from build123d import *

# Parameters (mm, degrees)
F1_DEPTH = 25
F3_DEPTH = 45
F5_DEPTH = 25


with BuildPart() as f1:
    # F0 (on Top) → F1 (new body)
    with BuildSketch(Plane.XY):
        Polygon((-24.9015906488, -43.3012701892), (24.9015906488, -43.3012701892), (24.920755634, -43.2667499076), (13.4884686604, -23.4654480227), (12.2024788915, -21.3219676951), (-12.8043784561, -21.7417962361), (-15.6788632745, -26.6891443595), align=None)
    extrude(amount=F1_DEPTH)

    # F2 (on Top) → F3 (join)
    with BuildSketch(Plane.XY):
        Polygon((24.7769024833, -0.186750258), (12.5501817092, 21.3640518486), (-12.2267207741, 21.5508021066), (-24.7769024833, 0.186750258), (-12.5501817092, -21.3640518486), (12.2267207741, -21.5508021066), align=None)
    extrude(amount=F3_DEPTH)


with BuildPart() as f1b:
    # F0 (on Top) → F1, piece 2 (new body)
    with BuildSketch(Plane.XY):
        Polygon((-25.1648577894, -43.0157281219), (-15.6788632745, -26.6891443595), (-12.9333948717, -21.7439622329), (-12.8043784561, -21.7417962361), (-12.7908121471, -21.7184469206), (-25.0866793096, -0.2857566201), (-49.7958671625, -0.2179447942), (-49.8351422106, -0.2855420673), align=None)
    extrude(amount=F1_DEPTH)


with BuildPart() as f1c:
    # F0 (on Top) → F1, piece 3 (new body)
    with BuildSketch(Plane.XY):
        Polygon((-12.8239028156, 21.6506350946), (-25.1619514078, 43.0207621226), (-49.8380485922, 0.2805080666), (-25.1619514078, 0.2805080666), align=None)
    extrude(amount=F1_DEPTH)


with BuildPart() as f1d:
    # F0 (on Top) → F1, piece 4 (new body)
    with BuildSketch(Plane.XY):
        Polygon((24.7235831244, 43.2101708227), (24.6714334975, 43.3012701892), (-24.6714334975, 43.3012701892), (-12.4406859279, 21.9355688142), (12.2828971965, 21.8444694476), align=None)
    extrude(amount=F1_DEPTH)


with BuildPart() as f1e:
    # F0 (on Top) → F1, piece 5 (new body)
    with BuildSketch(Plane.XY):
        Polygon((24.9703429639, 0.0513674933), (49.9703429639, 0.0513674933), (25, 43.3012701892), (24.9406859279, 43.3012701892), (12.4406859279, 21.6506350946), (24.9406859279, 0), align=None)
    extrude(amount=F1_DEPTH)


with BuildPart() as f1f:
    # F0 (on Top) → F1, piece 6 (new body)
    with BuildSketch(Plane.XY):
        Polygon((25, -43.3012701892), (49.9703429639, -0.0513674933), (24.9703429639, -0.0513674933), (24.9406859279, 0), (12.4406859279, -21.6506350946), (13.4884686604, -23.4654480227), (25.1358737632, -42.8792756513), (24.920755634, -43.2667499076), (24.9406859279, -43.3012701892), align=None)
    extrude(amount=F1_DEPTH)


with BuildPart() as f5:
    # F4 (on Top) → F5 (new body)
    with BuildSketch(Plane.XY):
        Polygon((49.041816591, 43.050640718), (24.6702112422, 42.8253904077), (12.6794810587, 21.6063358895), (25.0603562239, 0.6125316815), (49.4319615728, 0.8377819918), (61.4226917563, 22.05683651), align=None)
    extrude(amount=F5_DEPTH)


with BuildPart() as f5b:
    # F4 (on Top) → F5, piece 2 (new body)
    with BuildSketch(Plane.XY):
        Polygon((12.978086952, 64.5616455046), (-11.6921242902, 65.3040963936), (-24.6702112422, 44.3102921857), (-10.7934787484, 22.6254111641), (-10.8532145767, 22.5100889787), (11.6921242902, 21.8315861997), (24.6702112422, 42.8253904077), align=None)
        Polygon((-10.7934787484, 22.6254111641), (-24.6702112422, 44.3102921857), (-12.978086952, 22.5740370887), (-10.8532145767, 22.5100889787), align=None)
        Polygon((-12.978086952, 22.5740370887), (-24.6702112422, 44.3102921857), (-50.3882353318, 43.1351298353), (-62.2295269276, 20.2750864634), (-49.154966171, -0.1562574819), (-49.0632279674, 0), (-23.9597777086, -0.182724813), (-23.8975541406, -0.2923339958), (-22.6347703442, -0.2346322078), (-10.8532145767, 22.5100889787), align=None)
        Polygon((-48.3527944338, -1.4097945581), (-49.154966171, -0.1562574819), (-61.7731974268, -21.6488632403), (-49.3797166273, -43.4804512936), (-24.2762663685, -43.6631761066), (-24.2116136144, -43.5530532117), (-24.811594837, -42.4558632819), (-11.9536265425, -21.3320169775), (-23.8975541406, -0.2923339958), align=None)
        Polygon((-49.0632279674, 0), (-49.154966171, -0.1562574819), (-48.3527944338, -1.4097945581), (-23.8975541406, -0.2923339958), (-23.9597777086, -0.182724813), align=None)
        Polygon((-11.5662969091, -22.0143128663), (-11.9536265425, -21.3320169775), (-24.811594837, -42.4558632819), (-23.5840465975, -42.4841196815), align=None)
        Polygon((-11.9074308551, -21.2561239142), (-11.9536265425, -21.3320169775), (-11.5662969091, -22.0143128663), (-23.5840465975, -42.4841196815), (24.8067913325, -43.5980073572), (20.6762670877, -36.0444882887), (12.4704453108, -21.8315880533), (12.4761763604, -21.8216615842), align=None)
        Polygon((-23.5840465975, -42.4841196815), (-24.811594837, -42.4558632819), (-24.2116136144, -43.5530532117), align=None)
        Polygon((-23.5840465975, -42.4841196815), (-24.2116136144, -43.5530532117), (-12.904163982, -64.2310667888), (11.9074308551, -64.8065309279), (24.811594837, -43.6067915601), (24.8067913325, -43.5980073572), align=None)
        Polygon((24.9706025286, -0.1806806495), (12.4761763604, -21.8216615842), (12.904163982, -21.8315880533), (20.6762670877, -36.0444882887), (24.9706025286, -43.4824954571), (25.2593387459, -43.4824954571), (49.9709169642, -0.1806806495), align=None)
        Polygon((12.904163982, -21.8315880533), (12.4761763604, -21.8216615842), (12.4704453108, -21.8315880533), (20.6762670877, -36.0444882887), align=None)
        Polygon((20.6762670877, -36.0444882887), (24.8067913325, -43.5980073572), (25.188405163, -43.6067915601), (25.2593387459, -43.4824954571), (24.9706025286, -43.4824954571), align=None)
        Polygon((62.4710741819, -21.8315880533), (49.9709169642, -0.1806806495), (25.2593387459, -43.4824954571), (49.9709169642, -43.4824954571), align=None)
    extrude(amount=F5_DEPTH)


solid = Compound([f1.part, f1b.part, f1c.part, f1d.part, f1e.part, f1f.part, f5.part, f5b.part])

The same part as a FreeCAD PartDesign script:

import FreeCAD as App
import Part
import Sketcher
from FreeCAD import Vector
Q = App.Units.Quantity


def add_polygon(sketch, points):
    """Adds a closed chain of lines whose ends are joined by coincident constraints."""
    first, n = sketch.GeometryCount, len(points)
    for a, b in zip(points, points[1:] + points[:1]):
        sketch.addGeometry(Part.LineSegment(App.Vector(*a, 0), App.Vector(*b, 0)), False)
    for i in range(n):
        sketch.addConstraint(Sketcher.Constraint("Coincident", first + i, 2, first + (i + 1) % n, 1))

doc = App.newDocument("Part")
body = doc.addObject("PartDesign::Body", "Body")

# Sketch on XY plane
sketch1 = body.newObject("Sketcher::SketchObject", "Sketch")
sketch1.AttachmentSupport = (doc.getObject("XY_Plane"), [""])
sketch1.MapMode = "FlatFace"
add_polygon(sketch1, [(-24.902, -43.301), (24.902, -43.301), (24.921, -43.267), (13.488, -23.465), (12.202, -21.322), (-12.804, -21.742), (-15.679, -26.689)])  # lines 0-6
sketch1.addConstraint([
    Sketcher.Constraint("Horizontal", 0),
    Sketcher.Constraint("Parallel", 1, 6),
    Sketcher.Constraint("Angle", 2, Q("120 deg")),
    Sketcher.Constraint("DistanceX", 0, 1, 0, 2, Q("49.803181 mm")),
    Sketcher.Constraint("DistanceY", 1, 2, 2, 2, Q("19.801302 mm")),
    Sketcher.Constraint("Distance", 4, Q("25.010381 mm")),
    Sketcher.Constraint("DistanceX", -1, 1, 0, 2, Q("24.901591 mm")),
    Sketcher.Constraint("DistanceY", 0, 2, -1, 1, Q("43.30127 mm")),
    Sketcher.Constraint("DistanceY", 1, 2, -1, 1, Q("43.26675 mm")),
    Sketcher.Constraint("DistanceX", -1, 1, 3, 2, Q("12.202479 mm")),
    Sketcher.Constraint("DistanceX", 4, 2, -1, 1, Q("12.804378 mm")),
    Sketcher.Constraint("DistanceY", 2, 2, 3, 2, Q("2.14348 mm")),
    Sketcher.Constraint("DistanceY", 5, 2, 4, 2, Q("4.947348 mm")),
    Sketcher.Constraint("DistanceX", 5, 2, 2, 2, Q("29.167332 mm")),
])
pad1 = body.newObject("PartDesign::Pad", "Pad")
pad1.Profile = sketch1
pad1.Length = 25

# Sketch on XY plane
sketch2 = body.newObject("Sketcher::SketchObject", "Sketch001")
sketch2.AttachmentSupport = (doc.getObject("XY_Plane"), [""])
sketch2.MapMode = "FlatFace"
add_polygon(sketch2, [(25, 0), (13, 21), (-12, 22), (-25, 0), (-13, -21), (12, -22)])  # lines 0-5
sketch2.addConstraint([
    Sketcher.Constraint("Symmetric", 0, 2, 3, 2, -1, 1),
    Sketcher.Constraint("Symmetric", 1, 2, 4, 2, -1, 1),
    Sketcher.Constraint("Symmetric", 2, 2, 5, 2, -1, 1),
    Sketcher.Constraint("Equal", 0, 1),
    Sketcher.Constraint("Equal", 1, 2),
    Sketcher.Constraint("DistanceY", 2, 2, 0, 2, Q("21.177302 mm")),
    Sketcher.Constraint("DistanceY", 5, 2, 2, 2, Q("0.373501 mm")),
    Sketcher.Constraint("DistanceX", -1, 1, 0, 2, Q("12.550182 mm")),
    Sketcher.Constraint("DistanceX", 1, 2, -1, 1, Q("12.226721 mm")),
])
pad2 = body.newObject("PartDesign::Pad", "Pad001")
pad2.Profile = sketch2
pad2.Length = 45
body2 = doc.addObject("PartDesign::Body", "Body001")

# Sketch on XY plane
sketch3 = body2.newObject("Sketcher::SketchObject", "Sketch002")
sketch3.AttachmentSupport = (doc.getObject("XY_Plane001"), [""])
sketch3.MapMode = "FlatFace"
add_polygon(sketch3, [(-25.165, -43.016), (-15.679, -26.689), (-12.933, -21.744), (-12.804, -21.742), (-12.791, -21.718), (-25.087, -0.286), (-49.796, -0.218), (-49.835, -0.286)])  # lines 0-7
sketch3.addConstraint([
    Sketcher.Constraint("Parallel", 0, 3),
    Sketcher.Constraint("Parallel", 3, 6),
    Sketcher.Constraint("Equal", 4, 5),
    Sketcher.Constraint("Angle", 7, Q("-60 deg")),
    Sketcher.Constraint("DistanceX", 4, 2, 2, 2, Q("12.282301 mm")),
    Sketcher.Constraint("DistanceY", 0, 2, 5, 2, Q("26.4712 mm")),
    Sketcher.Constraint("Distance", 4, Q("24.709281 mm")),
    Sketcher.Constraint("Distance", 6, Q("0.078179 mm")),
    Sketcher.Constraint("Distance", 7, Q("49.340569 mm")),
    Sketcher.Constraint("DistanceX", 2, 2, -1, 1, Q("12.804378 mm")),
    Sketcher.Constraint("DistanceY", 7, 2, -1, 1, Q("43.015728 mm")),
    Sketcher.Constraint("DistanceX", 0, 2, 1, 2, Q("2.745468 mm")),
    Sketcher.Constraint("DistanceY", 0, 2, 2, 2, Q("4.947348 mm")),
    Sketcher.Constraint("DistanceY", 2, 2, 3, 2, Q("0.023349 mm")),
    Sketcher.Constraint("DistanceX", 0, 2, 3, 2, Q("2.888051 mm")),
    Sketcher.Constraint("DistanceY", 1, 2, 6, 2, Q("21.45842 mm")),
])
pad3 = body2.newObject("PartDesign::Pad", "Pad002")
pad3.Profile = sketch3
pad3.Length = 25
body3 = doc.addObject("PartDesign::Body", "Body002")

# Sketch on XY plane
sketch4 = body3.newObject("Sketcher::SketchObject", "Sketch003")
sketch4.AttachmentSupport = (doc.getObject("XY_Plane002"), [""])
sketch4.MapMode = "FlatFace"
add_polygon(sketch4, [(-13, 22), (-25, 43), (-50, 0), (-25, 0)])  # lines 0-3
sketch4.addConstraint([
    Sketcher.Constraint("Horizontal", 2),
    Sketcher.Constraint("Parallel", 1, 3),
    Sketcher.Constraint("Vertical", 0, 2, 2, 2),
    Sketcher.Constraint("Equal", 0, 3),
    Sketcher.Constraint("Angle", 0, Q("120 deg")),
    Sketcher.Constraint("DistanceX", 2, 1, 2, 2, Q("24.676097 mm")),
    Sketcher.Constraint("DistanceX", 0, 2, -1, 1, Q("25.161951 mm")),
    Sketcher.Constraint("DistanceY", -1, 1, 1, 2, Q("0.280508 mm")),
])
pad4 = body3.newObject("PartDesign::Pad", "Pad003")
pad4.Profile = sketch4
pad4.Length = 25
body4 = doc.addObject("PartDesign::Body", "Body003")

# Sketch on XY plane
sketch5 = body4.newObject("Sketcher::SketchObject", "Sketch004")
sketch5.AttachmentSupport = (doc.getObject("XY_Plane003"), [""])
sketch5.MapMode = "FlatFace"
add_polygon(sketch5, [(24.72, 43.21), (24.67, 43.3), (-24.67, 43.3), (-12.44, 21.94), (12.28, 21.84)])  # lines 0-4
sketch5.addConstraint([
    Sketcher.Constraint("Horizontal", 1),
    Sketcher.Constraint("Parallel", 0, 2),
    Sketcher.Constraint("Equal", 3, 4),
    Sketcher.Constraint("DistanceY", 2, 2, 1, 2, Q("21.365701 mm")),
    Sketcher.Constraint("DistanceY", 3, 2, 2, 2, Q("0.091099 mm")),
    Sketcher.Constraint("DistanceY", 4, 2, 0, 2, Q("0.091099 mm")),
    Sketcher.Constraint("Distance", 2, Q("24.618781 mm")),
    Sketcher.Constraint("Distance", 3, Q("24.723751 mm")),
    Sketcher.Constraint("DistanceY", -1, 1, 0, 2, Q("43.30127 mm")),
    Sketcher.Constraint("DistanceX", -1, 1, 0, 2, Q("24.671433 mm")),
])
pad5 = body4.newObject("PartDesign::Pad", "Pad004")
pad5.Profile = sketch5
pad5.Length = 25
body5 = doc.addObject("PartDesign::Body", "Body004")

# Sketch on XY plane
sketch6 = body5.newObject("Sketcher::SketchObject", "Sketch005")
sketch6.AttachmentSupport = (doc.getObject("XY_Plane004"), [""])
sketch6.MapMode = "FlatFace"
add_polygon(sketch6, [(24.97, 0.05), (49.97, 0.05), (25, 43.3), (24.94, 43.3), (12.44, 21.65), (24.94, 0)])  # lines 0-5
sketch6.addConstraint([
    Sketcher.Constraint("Horizontal", 0),
    Sketcher.Constraint("Horizontal", 2),
    Sketcher.Constraint("PointOnObject", 4, 2, -1),
    Sketcher.Constraint("Parallel", 1, 4),
    Sketcher.Constraint("Parallel", 3, 5),
    Sketcher.Constraint("Vertical", 2, 2, 4, 2),
    Sketcher.Constraint("Equal", 3, 4),
    Sketcher.Constraint("DistanceX", 0, 1, 0, 2, Q("25 mm")),
    Sketcher.Constraint("Angle", 1, Q("120 deg")),
    Sketcher.Constraint("Distance", 3, Q("25 mm")),
    Sketcher.Constraint("DistanceX", -1, 1, 1, 2, Q("25 mm")),
    Sketcher.Constraint("DistanceX", 2, 2, 2, 1, Q("0.059314 mm")),
])
pad6 = body5.newObject("PartDesign::Pad", "Pad005")
pad6.Profile = sketch6
pad6.Length = 25
body6 = doc.addObject("PartDesign::Body", "Body005")

# Sketch on XY plane
sketch7 = body6.newObject("Sketcher::SketchObject", "Sketch006")
sketch7.AttachmentSupport = (doc.getObject("XY_Plane005"), [""])
sketch7.MapMode = "FlatFace"
add_polygon(sketch7, [(25, -43.301), (49.97, -0.051), (24.97, -0.051), (24.941, 0), (12.441, -21.651), (13.488, -23.465), (25.136, -42.879), (24.921, -43.267), (24.941, -43.301)])  # lines 0-8
sketch7.addConstraint([
    Sketcher.Constraint("Horizontal", 1),
    Sketcher.Constraint("Horizontal", 8),
    Sketcher.Constraint("PointOnObject", 2, 2, -1),
    Sketcher.Constraint("Parallel", 0, 3),
    Sketcher.Constraint("Parallel", 2, 4),
    Sketcher.Constraint("Parallel", 4, 7),
    Sketcher.Constraint("Vertical", 2, 2, 7, 2),
    Sketcher.Constraint("DistanceX", 1, 2, 1, 1, Q("25 mm")),
    Sketcher.Constraint("Angle", 0, Q("60 deg")),
    Sketcher.Constraint("Angle", 2, Q("120 deg")),
    Sketcher.Constraint("Distance", 3, Q("25 mm")),
    Sketcher.Constraint("DistanceX", -1, 1, 8, 2, Q("25 mm")),
    Sketcher.Constraint("DistanceY", 6, 2, 4, 2, Q("19.801302 mm")),
    Sketcher.Constraint("Distance", 5, Q("22.63976 mm")),
    Sketcher.Constraint("Distance", 7, Q("0.039861 mm")),
    Sketcher.Constraint("DistanceX", 8, 1, 8, 2, Q("0.059314 mm")),
    Sketcher.Constraint("DistanceX", -1, 1, 4, 2, Q("13.488469 mm")),
    Sketcher.Constraint("DistanceY", 5, 2, 3, 2, Q("21.228641 mm")),
])
pad7 = body6.newObject("PartDesign::Pad", "Pad006")
pad7.Profile = sketch7
pad7.Length = 25
body7 = doc.addObject("PartDesign::Body", "Body006")

# Sketch on XY plane
sketch8 = body7.newObject("Sketcher::SketchObject", "Sketch007")
sketch8.AttachmentSupport = (doc.getObject("XY_Plane006"), [""])
sketch8.MapMode = "FlatFace"
add_polygon(sketch8, [(49, 43), (25, 43), (13, 22), (25, 1), (49, 1), (61, 22)])  # lines 0-5
sketch8.addConstraint([
    Sketcher.Constraint("Parallel", 0, 3),
    Sketcher.Constraint("Parallel", 1, 4),
    Sketcher.Constraint("Parallel", 2, 5),
    Sketcher.Constraint("Equal", 0, 1),
    Sketcher.Constraint("Equal", 1, 2),
    Sketcher.Constraint("Equal", 2, 3),
    Sketcher.Constraint("DistanceY", 1, 2, 4, 2, Q("0.450501 mm")),
    Sketcher.Constraint("DistanceX", -1, 1, 0, 2, Q("24.670211 mm")),
    Sketcher.Constraint("DistanceY", -1, 1, 0, 2, Q("42.82539 mm")),
    Sketcher.Constraint("DistanceX", -1, 1, 1, 2, Q("12.679481 mm")),
    Sketcher.Constraint("DistanceY", -1, 1, 2, 2, Q("0.612532 mm")),
    Sketcher.Constraint("DistanceX", -1, 1, 3, 2, Q("49.431962 mm")),
])
pad8 = body7.newObject("PartDesign::Pad", "Pad007")
pad8.Profile = sketch8
pad8.Length = 25
body8 = doc.addObject("PartDesign::Body", "Body007")

# Sketch on XY plane
sketch9 = body8.newObject("Sketcher::SketchObject", "Sketch008")
sketch9.AttachmentSupport = (doc.getObject("XY_Plane007"), [""])
sketch9.MapMode = "FlatFace"
add_polygon(sketch9, [(12.978, 64.562), (-11.692, 65.304), (-24.67, 44.31), (-50.388, 43.135), (-62.23, 20.275), (-49.155, -0.156), (-61.773, -21.649), (-49.38, -43.48), (-24.276, -43.663), (-24.212, -43.553), (-12.904, -64.231), (11.907, -64.807), (24.812, -43.607), (24.807, -43.598), (25.188, -43.607), (25.259, -43.482), (49.971, -43.482), (62.471, -21.832), (49.971, -0.181), (24.971, -0.181), (12.476, -21.822), (-11.907, -21.256), (-11.954, -21.332), (-23.898, -0.292), (-22.635, -0.235), (-10.853, 22.51), (11.692, 21.832), (24.67, 42.825)])  # lines 0-27
sketch9.addConstraint([
    Sketcher.Constraint("Horizontal", 15),
    Sketcher.Constraint("Horizontal", 18),
    Sketcher.Constraint("Parallel", 5, 8),
    Sketcher.Constraint("Parallel", 9, 12),
    Sketcher.Constraint("Parallel", 16, 19),
    Sketcher.Constraint("Parallel", 10, 20),
    Sketcher.Constraint("Parallel", 11, 21),
    Sketcher.Constraint("Parallel", 6, 22),
    Sketcher.Constraint("Parallel", 2, 23),
    Sketcher.Constraint("Parallel", 3, 24),
    Sketcher.Constraint("Parallel", 0, 25),
    Sketcher.Constraint("Parallel", 1, 26),
    Sketcher.Constraint("Horizontal", 11, 2, 13, 2),
    Sketcher.Constraint("Vertical", 15, 2, 17, 2),
    Sketcher.Constraint("Equal", 0, 1),
    Sketcher.Constraint("Equal", 2, 3),
    Sketcher.Constraint("Equal", 6, 7),
    Sketcher.Constraint("Equal", 10, 11),
    Sketcher.Constraint("Equal", 16, 17),
    Sketcher.Constraint("Equal", 1, 26),
    Sketcher.Constraint("Equal", 26, 27),
    Sketcher.Constraint("Angle", 16, Q("60 deg")),
    Sketcher.Constraint("Distance", 8, Q("0.127699 mm")),
    Sketcher.Constraint("Distance", 23, Q("1.264101 mm")),
    Sketcher.Constraint("DistanceX", 15, 1, 15, 2, Q("24.711578 mm")),
    Sketcher.Constraint("DistanceX", 4, 2, 7, 2, Q("24.8787 mm")),
    Sketcher.Constraint("DistanceY", 8, 2, 6, 2, Q("0.072602 mm")),
    Sketcher.Constraint("DistanceY", 22, 2, 23, 2, Q("0.057702 mm")),
    Sketcher.Constraint("DistanceY", 24, 2, 26, 2, Q("20.315301 mm")),
    Sketcher.Constraint("DistanceY", 26, 2, 1, 2, Q("1.484902 mm")),
    Sketcher.Constraint("DistanceX", 1, 2, 27, 2, Q("37.648298 mm")),
    Sketcher.Constraint("DistanceX", 24, 2, 27, 2, Q("23.831302 mm")),
    Sketcher.Constraint("Distance", 0, Q("24.681381 mm")),
    Sketcher.Constraint("Distance", 2, Q("25.744859 mm")),
    Sketcher.Constraint("Distance", 5, Q("24.922918 mm")),
    Sketcher.Constraint("Distance", 12, Q("0.010012 mm")),
    Sketcher.Constraint("DistanceX", 18, 2, 18, 1, Q("25.000314 mm")),
    Sketcher.Constraint("DistanceX", 1, 2, -1, 1, Q("24.670211 mm")),
    Sketcher.Constraint("DistanceY", -1, 1, 2, 2, Q("43.13513 mm")),
    Sketcher.Constraint("DistanceY", 6, 2, -1, 1, Q("43.480451 mm")),
    Sketcher.Constraint("DistanceX", -1, 1, 10, 2, Q("11.907431 mm")),
    Sketcher.Constraint("DistanceY", 10, 2, -1, 1, Q("64.806531 mm")),
    Sketcher.Constraint("DistanceY", 11, 2, -1, 1, Q("43.606792 mm")),
    Sketcher.Constraint("DistanceX", -1, 1, 12, 2, Q("24.806791 mm")),
    Sketcher.Constraint("DistanceX", -1, 1, 14, 2, Q("25.259339 mm")),
    Sketcher.Constraint("DistanceY", 16, 2, -1, 1, Q("21.831588 mm")),
    Sketcher.Constraint("DistanceY", 17, 2, -1, 1, Q("0.180681 mm")),
    Sketcher.Constraint("DistanceY", 19, 2, -1, 1, Q("21.821662 mm")),
    Sketcher.Constraint("DistanceX", 20, 2, -1, 1, Q("11.907431 mm")),
    Sketcher.Constraint("DistanceX", 23, 2, -1, 1, Q("22.63477 mm")),
    Sketcher.Constraint("DistanceX", 3, 2, 2, 2, Q("11.841292 mm")),
    Sketcher.Constraint("DistanceX", 3, 2, 4, 2, Q("13.074561 mm")),
    Sketcher.Constraint("DistanceY", 4, 2, 1, 2, Q("44.46655 mm")),
    Sketcher.Constraint("DistanceX", 5, 2, 4, 2, Q("12.618231 mm")),
    Sketcher.Constraint("DistanceY", 9, 2, 7, 2, Q("20.567891 mm")),
    Sketcher.Constraint("DistanceX", 11, 2, 13, 2, Q("0.37681 mm")),
])
pad9 = body8.newObject("PartDesign::Pad", "Pad008")
pad9.Profile = sketch9
pad9.Length = 25

doc.recompute()
